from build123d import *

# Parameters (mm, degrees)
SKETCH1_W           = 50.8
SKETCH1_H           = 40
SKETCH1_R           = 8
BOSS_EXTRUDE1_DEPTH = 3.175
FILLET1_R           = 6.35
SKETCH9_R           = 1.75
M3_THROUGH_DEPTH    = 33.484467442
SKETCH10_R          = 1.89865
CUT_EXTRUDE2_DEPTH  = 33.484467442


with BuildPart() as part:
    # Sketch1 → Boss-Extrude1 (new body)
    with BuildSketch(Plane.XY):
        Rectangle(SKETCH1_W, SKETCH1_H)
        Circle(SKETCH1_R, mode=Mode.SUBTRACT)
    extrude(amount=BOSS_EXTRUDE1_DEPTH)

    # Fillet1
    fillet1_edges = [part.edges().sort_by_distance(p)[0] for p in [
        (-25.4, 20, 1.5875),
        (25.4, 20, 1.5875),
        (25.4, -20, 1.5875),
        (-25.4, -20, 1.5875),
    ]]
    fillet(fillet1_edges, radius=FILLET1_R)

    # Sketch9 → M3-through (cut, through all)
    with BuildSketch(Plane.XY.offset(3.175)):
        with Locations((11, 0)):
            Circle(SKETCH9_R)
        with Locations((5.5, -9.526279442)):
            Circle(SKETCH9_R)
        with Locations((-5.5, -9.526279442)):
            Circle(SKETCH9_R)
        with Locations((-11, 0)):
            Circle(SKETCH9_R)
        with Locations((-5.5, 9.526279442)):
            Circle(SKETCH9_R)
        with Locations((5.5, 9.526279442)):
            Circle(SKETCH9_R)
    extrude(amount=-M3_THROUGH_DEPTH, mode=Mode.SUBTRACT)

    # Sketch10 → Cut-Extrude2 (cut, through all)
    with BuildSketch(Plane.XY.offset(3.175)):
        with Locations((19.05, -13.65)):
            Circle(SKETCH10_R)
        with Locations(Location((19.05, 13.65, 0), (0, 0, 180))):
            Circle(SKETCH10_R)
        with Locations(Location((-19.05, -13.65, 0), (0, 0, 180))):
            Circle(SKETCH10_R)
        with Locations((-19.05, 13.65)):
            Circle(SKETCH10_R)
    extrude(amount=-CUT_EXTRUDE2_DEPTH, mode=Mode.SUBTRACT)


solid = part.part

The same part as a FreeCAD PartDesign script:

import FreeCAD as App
import Part
import Sketcher

V = App.Vector


def edges_at(feature, points):
    """Names of the edges that pass closest to the given points."""
    edges = feature.Shape.Edges
    near = lambda p: min(range(len(edges)), key=lambda i: edges[i].distToShape(Part.Vertex(*p))[0])
    return sorted({f"Edge{near(p) + 1}" for p in points})


def add_polygon(sketch, points):
    """Adds a closed chain of lines whose ends are joined by coincident constraints."""
    first, n = sketch.GeometryCount, len(points)
    for a, b in zip(points, points[1:] + points[:1]):
        sketch.addGeometry(Part.LineSegment(App.Vector(*a, 0), App.Vector(*b, 0)), False)
    for i in range(n):
        sketch.addConstraint(Sketcher.Constraint("Coincident", first + i, 2, first + (i + 1) % n, 1))

doc = App.newDocument("Part")
body = doc.addObject("PartDesign::Body", "Body")

sketch1 = doc.addObject("Sketcher::SketchObject", "Sketch")
body.addObject(sketch1)
sketch1.AttachmentSupport = (doc.XY_Plane, [""])
sketch1.MapMode = "FlatFace"
add_polygon(sketch1, [(-25, 20), (-25, -20), (25, -20), (25, 20)])
sketch1.addGeometry(Part.Circle(V(0, 0, 0), V(0, 0, 1), 8), False)
sketch1.addConstraint([
    Sketcher.Constraint("Vertical", 0),
    Sketcher.Constraint("Horizontal", 1),
    Sketcher.Constraint("Vertical", 2),
    Sketcher.Constraint("Horizontal", 3),
    Sketcher.Constraint("Coincident", 4, 3, -1, 1),
    Sketcher.Constraint("Symmetric", 0, 2, 2, 2, -1, 1),
    Sketcher.Constraint("Diameter", 4, 16.0),
    Sketcher.Constraint("DistanceY", 0, 2, 0, 1, 40.0),
    Sketcher.Constraint("DistanceX", 1, 1, 1, 2, 50.8),
])
pad1 = doc.addObject("PartDesign::Pad", "Pad")
body.addObject(pad1)
pad1.Profile = sketch1
pad1.Length = 3.175
doc.recompute()

fillet = doc.addObject("PartDesign::Fillet", "Fillet")
body.addObject(fillet)
fillet.Base = (pad1, edges_at(pad1, [
    (-25.4, 20, 1.587),
    (25.4, 20, 1.587),
    (25.4, -20, 1.587),
    (-25.4, -20, 1.587),
]))
fillet.Radius = 6.35

sketch2 = doc.addObject("Sketcher::SketchObject", "Sketch001")
body.addObject(sketch2)
sketch2.AttachmentSupport = (doc.XY_Plane, [""])
sketch2.MapMode = "FlatFace"
sketch2.AttachmentOffset = App.Placement(V(0, 0, 3.175), App.Rotation())
sketch2.addGeometry([
    Part.Circle(V(11, 0, 0), V(0, 0, 1), 1.8),
    Part.Circle(V(5.5, -9.5, 0), V(0, 0, 1), 1.8),
    Part.Circle(V(-5.5, -9.5, 0), V(0, 0, 1), 1.8),
    Part.Circle(V(-11, 0, 0), V(0, 0, 1), 1.8),
    Part.Circle(V(-5.5, 9.5, 0), V(0, 0, 1), 1.8),
    Part.Circle(V(5.5, 9.5, 0), V(0, 0, 1), 1.8),
], False)
sketch2.addConstraint([
    Sketcher.Constraint("Equal", 0, 1),
    Sketcher.Constraint("Equal", 1, 2),
    Sketcher.Constraint("Equal", 2, 3),
    Sketcher.Constraint("Equal", 3, 4),
    Sketcher.Constraint("Equal", 4, 5),
    Sketcher.Constraint("Symmetric", 0, 3, 3, 3, -1, 1),
    Sketcher.Constraint("Symmetric", 1, 3, 4, 3, -1, 1),
    Sketcher.Constraint("Symmetric", 2, 3, 5, 3, -1, 1),
    Sketcher.Constraint("Symmetric", 1, 3, 2, 3, -2),
    Sketcher.Constraint("PointOnObject", 0, 3, -1),
    Sketcher.Constraint("Diameter", 0, 3.5),
    Sketcher.Constraint("DistanceX", -1, 1, 0, 3, 11.0),
    Sketcher.Constraint("DistanceX", 2, 3, 1, 3, 11.0),
    Sketcher.Constraint("DistanceY", 1, 3, -1, 1, 9.526279),
])
pocket1 = doc.addObject("PartDesign::Pocket", "Pocket")
body.addObject(pocket1)
pocket1.Profile = sketch2
pocket1.Type = "ThroughAll"

sketch3 = doc.addObject("Sketcher::SketchObject", "Sketch002")
body.addObject(sketch3)
sketch3.AttachmentSupport = (doc.XY_Plane, [""])
sketch3.MapMode = "FlatFace"
sketch3.AttachmentOffset = App.Placement(V(0, 0, 3.175), App.Rotation())
sketch3.addGeometry([
    Part.Circle(V(19.1, -13.7, 0), V(0, 0, 1), 1.9),
    Part.Circle(V(19.1, 13.7, 0), V(0, 0, 1), 1.9),
    Part.Circle(V(-19.1, -13.7, 0), V(0, 0, 1), 1.9),
    Part.Circle(V(-19.1, 13.7, 0), V(0, 0, 1), 1.9),
], False)
sketch3.addConstraint([
    Sketcher.Constraint("Equal", 0, 1),
    Sketcher.Constraint("Equal", 1, 2),
    Sketcher.Constraint("Equal", 2, 3),
    Sketcher.Constraint("Symmetric", 1, 3, 2, 3, -1, 1),
    Sketcher.Constraint("Symmetric", 0, 3, 3, 3, -1, 1),
    Sketcher.Constraint("Symmetric", 0, 3, 2, 3, -2),
    Sketcher.Constraint("Diameter", 0, 3.7973),
    Sketcher.Constraint("DistanceY", 0, 3, 1, 3, 27.3),
    Sketcher.Constraint("DistanceX", 2, 3, 0, 3, 38.1),
])
pocket2 = doc.addObject("PartDesign::Pocket", "Pocket001")
body.addObject(pocket2)
pocket2.Profile = sketch3
pocket2.Type = "ThroughAll"

doc.recompute()
